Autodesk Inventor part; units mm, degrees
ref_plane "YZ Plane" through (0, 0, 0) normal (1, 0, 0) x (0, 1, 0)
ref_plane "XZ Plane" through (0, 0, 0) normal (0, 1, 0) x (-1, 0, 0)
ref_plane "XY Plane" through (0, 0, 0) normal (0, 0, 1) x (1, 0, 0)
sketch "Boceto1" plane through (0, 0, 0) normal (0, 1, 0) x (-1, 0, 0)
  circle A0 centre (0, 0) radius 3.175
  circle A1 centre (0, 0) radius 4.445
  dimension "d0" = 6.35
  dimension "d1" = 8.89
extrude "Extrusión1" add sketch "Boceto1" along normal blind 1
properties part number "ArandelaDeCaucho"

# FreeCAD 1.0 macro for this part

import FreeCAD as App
import Part
import Sketcher
Q = App.Units.Quantity

doc = App.newDocument("Part")
params = doc.addObject("Spreadsheet::Sheet", "Params")
for row, (alias, value) in enumerate([
    ("sketch1_diameter", "0.35 in"),
    ("sketch1_diameter2", "0.25 in"),
    ("pad1_length", "1 mm"),
], start=1):
    params.set(f"A{row}", alias)
    params.set(f"B{row}", "=" + value)
    params.setAlias(f"B{row}", alias)

body = doc.addObject("PartDesign::Body", "Body")

sketch1 = body.newObject("Sketcher::SketchObject", "Sketch")
sketch1.AttachmentSupport = (doc.getObject("XZ_Plane"), [""])
sketch1.MapMode = "FlatFace"
sketch1.addGeometry([
    Part.Circle(App.Vector(0, 0, 0), App.Vector(0, 0, 1), 4.4),
    Part.Circle(App.Vector(0, 0, 0), App.Vector(0, 0, 1), 3.2),
], False)
sketch1.addConstraint([
    Sketcher.Constraint("Coincident", 0, 3, -1, 1),
    Sketcher.Constraint("Coincident", 1, 3, -1, 1),
    Sketcher.Constraint("Diameter", 0, Q("0.35 in")),
    Sketcher.Constraint("Diameter", 1, Q("0.25 in")),
])
sketch1.setExpression("Constraints[2]", "Params.sketch1_diameter")
sketch1.setExpression("Constraints[3]", "Params.sketch1_diameter2")
pad1 = body.newObject("PartDesign::Pad", "Pad")
pad1.Profile = sketch1
pad1.setExpression("Length", "Params.pad1_length")
pad1.Reversed = True

doc.recompute()
